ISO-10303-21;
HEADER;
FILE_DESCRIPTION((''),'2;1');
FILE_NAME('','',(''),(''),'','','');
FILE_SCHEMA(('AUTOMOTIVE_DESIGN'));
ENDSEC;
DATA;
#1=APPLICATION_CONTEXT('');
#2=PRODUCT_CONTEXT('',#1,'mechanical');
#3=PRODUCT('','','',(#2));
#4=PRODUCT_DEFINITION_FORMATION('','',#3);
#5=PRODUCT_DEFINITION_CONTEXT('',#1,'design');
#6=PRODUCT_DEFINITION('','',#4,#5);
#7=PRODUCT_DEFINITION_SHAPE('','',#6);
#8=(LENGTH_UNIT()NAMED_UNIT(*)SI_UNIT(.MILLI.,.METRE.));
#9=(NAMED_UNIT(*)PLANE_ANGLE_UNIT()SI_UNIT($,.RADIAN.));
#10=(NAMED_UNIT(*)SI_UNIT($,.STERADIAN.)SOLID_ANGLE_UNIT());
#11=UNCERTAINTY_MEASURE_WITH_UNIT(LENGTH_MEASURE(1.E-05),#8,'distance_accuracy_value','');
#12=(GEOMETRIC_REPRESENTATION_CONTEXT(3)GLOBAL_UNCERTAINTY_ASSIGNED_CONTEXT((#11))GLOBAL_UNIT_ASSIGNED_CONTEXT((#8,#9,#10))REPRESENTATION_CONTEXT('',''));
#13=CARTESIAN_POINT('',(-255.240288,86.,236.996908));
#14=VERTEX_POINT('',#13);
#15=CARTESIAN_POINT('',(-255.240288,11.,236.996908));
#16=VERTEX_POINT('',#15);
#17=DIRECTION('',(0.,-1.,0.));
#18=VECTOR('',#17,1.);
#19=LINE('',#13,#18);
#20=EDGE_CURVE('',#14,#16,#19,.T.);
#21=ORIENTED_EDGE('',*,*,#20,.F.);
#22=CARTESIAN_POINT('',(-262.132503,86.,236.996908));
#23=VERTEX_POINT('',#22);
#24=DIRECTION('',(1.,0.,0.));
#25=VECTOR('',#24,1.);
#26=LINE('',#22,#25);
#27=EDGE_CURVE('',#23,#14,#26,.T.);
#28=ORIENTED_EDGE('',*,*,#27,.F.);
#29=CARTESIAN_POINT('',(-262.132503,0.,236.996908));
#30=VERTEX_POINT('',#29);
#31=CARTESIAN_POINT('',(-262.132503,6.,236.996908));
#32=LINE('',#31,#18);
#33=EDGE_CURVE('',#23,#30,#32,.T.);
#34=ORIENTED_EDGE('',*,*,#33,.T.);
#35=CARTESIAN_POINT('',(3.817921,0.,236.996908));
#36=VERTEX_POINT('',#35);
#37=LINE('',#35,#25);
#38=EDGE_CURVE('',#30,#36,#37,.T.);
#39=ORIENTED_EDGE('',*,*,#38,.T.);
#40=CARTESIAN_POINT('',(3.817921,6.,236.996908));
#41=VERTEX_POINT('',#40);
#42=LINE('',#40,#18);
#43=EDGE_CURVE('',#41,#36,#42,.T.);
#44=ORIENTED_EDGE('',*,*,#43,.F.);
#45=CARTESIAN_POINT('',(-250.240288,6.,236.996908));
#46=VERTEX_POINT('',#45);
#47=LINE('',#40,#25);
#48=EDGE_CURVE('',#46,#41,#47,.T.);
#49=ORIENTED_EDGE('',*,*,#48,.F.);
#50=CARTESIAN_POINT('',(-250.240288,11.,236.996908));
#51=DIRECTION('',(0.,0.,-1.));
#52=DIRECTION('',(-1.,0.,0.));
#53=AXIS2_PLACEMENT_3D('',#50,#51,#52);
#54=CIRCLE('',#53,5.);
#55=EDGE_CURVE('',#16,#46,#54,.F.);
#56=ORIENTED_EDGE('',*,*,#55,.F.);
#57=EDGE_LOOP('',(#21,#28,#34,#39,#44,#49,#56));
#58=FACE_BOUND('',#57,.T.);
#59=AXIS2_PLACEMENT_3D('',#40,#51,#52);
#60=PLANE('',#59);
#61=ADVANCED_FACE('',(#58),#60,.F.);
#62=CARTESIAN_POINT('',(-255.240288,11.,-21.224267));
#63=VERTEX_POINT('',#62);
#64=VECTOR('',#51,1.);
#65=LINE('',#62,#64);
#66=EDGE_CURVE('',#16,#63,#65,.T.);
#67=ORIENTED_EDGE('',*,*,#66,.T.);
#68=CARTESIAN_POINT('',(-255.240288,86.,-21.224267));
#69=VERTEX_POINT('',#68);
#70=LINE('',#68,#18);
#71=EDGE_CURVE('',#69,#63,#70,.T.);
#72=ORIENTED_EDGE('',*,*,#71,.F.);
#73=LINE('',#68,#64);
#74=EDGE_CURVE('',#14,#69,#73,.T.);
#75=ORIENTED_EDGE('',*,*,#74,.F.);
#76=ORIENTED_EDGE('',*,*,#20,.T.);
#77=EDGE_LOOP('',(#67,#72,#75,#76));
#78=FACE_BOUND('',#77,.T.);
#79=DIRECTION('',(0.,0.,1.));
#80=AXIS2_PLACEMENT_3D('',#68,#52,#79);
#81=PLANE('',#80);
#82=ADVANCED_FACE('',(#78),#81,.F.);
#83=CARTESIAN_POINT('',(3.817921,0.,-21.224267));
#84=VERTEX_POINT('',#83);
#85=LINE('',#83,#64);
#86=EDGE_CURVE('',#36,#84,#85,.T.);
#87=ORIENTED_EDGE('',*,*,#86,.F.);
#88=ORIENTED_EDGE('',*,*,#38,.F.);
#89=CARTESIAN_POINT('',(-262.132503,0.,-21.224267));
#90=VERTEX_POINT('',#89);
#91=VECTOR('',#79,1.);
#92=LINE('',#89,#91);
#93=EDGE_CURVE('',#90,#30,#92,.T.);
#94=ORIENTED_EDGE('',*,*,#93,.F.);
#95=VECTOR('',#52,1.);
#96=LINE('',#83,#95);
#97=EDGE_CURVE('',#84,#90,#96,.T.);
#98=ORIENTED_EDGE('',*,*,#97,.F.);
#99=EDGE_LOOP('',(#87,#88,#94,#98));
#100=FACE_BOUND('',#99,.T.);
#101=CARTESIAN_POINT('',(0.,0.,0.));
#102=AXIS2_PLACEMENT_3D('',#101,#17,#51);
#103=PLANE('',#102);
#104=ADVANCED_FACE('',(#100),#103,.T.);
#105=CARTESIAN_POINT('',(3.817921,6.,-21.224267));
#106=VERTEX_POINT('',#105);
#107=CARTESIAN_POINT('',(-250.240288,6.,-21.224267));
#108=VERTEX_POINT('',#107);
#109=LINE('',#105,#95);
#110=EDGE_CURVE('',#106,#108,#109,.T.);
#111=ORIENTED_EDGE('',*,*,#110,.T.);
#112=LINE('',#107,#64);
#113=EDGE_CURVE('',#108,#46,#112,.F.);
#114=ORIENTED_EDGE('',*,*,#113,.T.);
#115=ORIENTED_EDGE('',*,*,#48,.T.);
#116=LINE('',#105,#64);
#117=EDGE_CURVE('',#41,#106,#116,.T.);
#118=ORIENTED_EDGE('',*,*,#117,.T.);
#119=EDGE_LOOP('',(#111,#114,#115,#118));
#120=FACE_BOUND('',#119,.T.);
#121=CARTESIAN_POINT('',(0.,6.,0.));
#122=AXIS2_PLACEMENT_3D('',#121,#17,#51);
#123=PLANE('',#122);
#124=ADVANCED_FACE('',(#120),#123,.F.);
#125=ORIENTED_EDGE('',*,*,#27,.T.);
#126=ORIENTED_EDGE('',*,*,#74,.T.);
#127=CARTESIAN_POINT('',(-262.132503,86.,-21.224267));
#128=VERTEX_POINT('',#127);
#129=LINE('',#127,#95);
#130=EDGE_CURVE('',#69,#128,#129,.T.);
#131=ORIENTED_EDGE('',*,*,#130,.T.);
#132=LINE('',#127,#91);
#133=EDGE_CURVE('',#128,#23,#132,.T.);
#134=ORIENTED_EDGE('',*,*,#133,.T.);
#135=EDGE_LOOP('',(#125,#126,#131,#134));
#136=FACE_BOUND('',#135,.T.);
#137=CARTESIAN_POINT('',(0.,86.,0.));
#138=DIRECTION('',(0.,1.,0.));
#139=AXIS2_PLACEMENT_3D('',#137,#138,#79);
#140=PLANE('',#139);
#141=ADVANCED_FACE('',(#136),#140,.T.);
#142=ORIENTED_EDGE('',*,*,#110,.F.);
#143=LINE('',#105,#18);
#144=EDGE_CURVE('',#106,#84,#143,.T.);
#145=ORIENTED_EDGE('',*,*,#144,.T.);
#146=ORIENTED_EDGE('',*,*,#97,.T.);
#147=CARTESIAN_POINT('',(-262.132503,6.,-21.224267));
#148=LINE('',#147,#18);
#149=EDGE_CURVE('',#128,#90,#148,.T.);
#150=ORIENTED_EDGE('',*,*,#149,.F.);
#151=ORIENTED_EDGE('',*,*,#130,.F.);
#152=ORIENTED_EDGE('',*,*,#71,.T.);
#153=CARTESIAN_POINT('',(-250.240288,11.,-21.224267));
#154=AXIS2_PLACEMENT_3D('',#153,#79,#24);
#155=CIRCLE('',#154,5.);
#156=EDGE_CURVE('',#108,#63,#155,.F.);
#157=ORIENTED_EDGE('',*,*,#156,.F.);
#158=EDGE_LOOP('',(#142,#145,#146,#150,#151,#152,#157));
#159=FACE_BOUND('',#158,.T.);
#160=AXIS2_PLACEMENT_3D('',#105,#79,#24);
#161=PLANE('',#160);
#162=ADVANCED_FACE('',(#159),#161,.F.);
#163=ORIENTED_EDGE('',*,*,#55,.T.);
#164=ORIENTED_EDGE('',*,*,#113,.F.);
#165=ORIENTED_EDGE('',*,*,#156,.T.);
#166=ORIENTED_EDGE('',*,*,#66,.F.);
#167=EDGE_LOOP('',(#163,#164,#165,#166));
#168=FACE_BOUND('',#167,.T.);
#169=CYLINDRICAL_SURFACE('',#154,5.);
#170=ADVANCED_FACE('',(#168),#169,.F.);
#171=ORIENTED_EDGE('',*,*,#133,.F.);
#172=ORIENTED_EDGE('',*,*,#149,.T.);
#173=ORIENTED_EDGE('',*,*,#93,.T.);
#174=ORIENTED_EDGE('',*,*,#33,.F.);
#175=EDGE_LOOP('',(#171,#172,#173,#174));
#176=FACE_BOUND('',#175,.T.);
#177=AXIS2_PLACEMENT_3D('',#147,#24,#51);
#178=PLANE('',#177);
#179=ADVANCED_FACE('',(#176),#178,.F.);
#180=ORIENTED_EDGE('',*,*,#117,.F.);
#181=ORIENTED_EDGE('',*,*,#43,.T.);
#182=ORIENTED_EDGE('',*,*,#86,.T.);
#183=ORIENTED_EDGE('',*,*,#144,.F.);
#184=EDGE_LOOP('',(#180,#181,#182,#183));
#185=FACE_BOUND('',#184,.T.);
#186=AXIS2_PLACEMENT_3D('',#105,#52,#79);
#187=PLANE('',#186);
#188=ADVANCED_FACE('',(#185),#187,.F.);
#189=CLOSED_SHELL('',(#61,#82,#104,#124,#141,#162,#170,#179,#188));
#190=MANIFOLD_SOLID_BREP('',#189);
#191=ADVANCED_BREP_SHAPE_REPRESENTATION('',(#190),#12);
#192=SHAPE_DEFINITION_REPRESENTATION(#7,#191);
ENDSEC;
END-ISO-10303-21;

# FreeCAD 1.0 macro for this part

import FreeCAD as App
import Part
import Sketcher


def edges_at(feature, points):
    """Names of the edges that pass closest to the given points."""
    edges = feature.Shape.Edges
    near = lambda p: min(range(len(edges)), key=lambda i: edges[i].distToShape(Part.Vertex(*p))[0])
    return sorted({f"Edge{near(p) + 1}" for p in points})

doc = App.newDocument("Part")
body = doc.addObject("PartDesign::Body", "Body")

# Sketch on XZ plane
sketch1 = body.newObject("Sketcher::SketchObject", "Sketch")
sketch1.AttachmentSupport = (doc.getObject("XZ_Plane"), [""])
sketch1.MapMode = "FlatFace"
sketch1.addGeometry([
    Part.LineSegment(App.Vector(-262, -21, 0), App.Vector(-262, 237, 0)),
    Part.LineSegment(App.Vector(-262, 237, 0), App.Vector(4, 237, 0)),
    Part.LineSegment(App.Vector(4, 237, 0), App.Vector(4, -21, 0)),
    Part.LineSegment(App.Vector(4, -21, 0), App.Vector(-262, -21, 0)),
], False)
sketch1.addConstraint([
    Sketcher.Constraint("Coincident", 0, 2, 1, 1),
    Sketcher.Constraint("Coincident", 1, 2, 2, 1),
    Sketcher.Constraint("Coincident", 2, 2, 3, 1),
    Sketcher.Constraint("Coincident", 3, 2, 0, 1),
    Sketcher.Constraint("Vertical", 0),
    Sketcher.Constraint("Horizontal", 1),
    Sketcher.Constraint("Vertical", 2),
    Sketcher.Constraint("Horizontal", 3),
    Sketcher.Constraint("DistanceX", 1, 1, 1, 2, 265.950423),
    Sketcher.Constraint("DistanceY", 0, 1, 0, 2, 258.221175),
    Sketcher.Constraint("DistanceX", -1, 1, 1, 2, 3.817921),
    Sketcher.Constraint("DistanceY", -1, 1, 0, 2, 236.996908),
])
pad1 = body.newObject("PartDesign::Pad", "Pad")
pad1.Profile = sketch1
pad1.Length = 6
pad1.Reversed = True

# Sketch on XZ plane
sketch2 = body.newObject("Sketcher::SketchObject", "Sketch001")
sketch2.AttachmentSupport = (doc.getObject("XZ_Plane"), [""])
sketch2.MapMode = "FlatFace"
sketch2.AttachmentOffset = App.Placement(App.Vector(0, 0, -6), App.Rotation())
sketch2.addGeometry([
    Part.LineSegment(App.Vector(-262, -21, 0), App.Vector(-262, 237, 0)),
    Part.LineSegment(App.Vector(-262, 237, 0), App.Vector(-255, 237, 0)),
    Part.LineSegment(App.Vector(-255, 237, 0), App.Vector(-255, -21, 0)),
    Part.LineSegment(App.Vector(-255, -21, 0), App.Vector(-262, -21, 0)),
], False)
sketch2.addConstraint([
    Sketcher.Constraint("Coincident", 0, 2, 1, 1),
    Sketcher.Constraint("Coincident", 1, 2, 2, 1),
    Sketcher.Constraint("Coincident", 2, 2, 3, 1),
    Sketcher.Constraint("Coincident", 3, 2, 0, 1),
    Sketcher.Constraint("Vertical", 0),
    Sketcher.Constraint("Horizontal", 1),
    Sketcher.Constraint("Vertical", 2),
    Sketcher.Constraint("Horizontal", 3),
    Sketcher.Constraint("DistanceX", 1, 1, 1, 2, 6.892215),
    Sketcher.Constraint("DistanceY", 0, 1, 0, 2, 258.221175),
    Sketcher.Constraint("DistanceX", 1, 2, -1, 1, 255.240288),
    Sketcher.Constraint("DistanceY", -1, 1, 0, 2, 236.996908),
])
pad2 = body.newObject("PartDesign::Pad", "Pad001")
pad2.Profile = sketch2
pad2.Length = 80
pad2.Reversed = True
doc.recompute()

fillet = body.newObject("PartDesign::Fillet", "Fillet")
fillet.Base = (pad2, edges_at(pad2, [(-255.24, 6, 107.886)]))
fillet.Radius = 5

doc.recompute()
